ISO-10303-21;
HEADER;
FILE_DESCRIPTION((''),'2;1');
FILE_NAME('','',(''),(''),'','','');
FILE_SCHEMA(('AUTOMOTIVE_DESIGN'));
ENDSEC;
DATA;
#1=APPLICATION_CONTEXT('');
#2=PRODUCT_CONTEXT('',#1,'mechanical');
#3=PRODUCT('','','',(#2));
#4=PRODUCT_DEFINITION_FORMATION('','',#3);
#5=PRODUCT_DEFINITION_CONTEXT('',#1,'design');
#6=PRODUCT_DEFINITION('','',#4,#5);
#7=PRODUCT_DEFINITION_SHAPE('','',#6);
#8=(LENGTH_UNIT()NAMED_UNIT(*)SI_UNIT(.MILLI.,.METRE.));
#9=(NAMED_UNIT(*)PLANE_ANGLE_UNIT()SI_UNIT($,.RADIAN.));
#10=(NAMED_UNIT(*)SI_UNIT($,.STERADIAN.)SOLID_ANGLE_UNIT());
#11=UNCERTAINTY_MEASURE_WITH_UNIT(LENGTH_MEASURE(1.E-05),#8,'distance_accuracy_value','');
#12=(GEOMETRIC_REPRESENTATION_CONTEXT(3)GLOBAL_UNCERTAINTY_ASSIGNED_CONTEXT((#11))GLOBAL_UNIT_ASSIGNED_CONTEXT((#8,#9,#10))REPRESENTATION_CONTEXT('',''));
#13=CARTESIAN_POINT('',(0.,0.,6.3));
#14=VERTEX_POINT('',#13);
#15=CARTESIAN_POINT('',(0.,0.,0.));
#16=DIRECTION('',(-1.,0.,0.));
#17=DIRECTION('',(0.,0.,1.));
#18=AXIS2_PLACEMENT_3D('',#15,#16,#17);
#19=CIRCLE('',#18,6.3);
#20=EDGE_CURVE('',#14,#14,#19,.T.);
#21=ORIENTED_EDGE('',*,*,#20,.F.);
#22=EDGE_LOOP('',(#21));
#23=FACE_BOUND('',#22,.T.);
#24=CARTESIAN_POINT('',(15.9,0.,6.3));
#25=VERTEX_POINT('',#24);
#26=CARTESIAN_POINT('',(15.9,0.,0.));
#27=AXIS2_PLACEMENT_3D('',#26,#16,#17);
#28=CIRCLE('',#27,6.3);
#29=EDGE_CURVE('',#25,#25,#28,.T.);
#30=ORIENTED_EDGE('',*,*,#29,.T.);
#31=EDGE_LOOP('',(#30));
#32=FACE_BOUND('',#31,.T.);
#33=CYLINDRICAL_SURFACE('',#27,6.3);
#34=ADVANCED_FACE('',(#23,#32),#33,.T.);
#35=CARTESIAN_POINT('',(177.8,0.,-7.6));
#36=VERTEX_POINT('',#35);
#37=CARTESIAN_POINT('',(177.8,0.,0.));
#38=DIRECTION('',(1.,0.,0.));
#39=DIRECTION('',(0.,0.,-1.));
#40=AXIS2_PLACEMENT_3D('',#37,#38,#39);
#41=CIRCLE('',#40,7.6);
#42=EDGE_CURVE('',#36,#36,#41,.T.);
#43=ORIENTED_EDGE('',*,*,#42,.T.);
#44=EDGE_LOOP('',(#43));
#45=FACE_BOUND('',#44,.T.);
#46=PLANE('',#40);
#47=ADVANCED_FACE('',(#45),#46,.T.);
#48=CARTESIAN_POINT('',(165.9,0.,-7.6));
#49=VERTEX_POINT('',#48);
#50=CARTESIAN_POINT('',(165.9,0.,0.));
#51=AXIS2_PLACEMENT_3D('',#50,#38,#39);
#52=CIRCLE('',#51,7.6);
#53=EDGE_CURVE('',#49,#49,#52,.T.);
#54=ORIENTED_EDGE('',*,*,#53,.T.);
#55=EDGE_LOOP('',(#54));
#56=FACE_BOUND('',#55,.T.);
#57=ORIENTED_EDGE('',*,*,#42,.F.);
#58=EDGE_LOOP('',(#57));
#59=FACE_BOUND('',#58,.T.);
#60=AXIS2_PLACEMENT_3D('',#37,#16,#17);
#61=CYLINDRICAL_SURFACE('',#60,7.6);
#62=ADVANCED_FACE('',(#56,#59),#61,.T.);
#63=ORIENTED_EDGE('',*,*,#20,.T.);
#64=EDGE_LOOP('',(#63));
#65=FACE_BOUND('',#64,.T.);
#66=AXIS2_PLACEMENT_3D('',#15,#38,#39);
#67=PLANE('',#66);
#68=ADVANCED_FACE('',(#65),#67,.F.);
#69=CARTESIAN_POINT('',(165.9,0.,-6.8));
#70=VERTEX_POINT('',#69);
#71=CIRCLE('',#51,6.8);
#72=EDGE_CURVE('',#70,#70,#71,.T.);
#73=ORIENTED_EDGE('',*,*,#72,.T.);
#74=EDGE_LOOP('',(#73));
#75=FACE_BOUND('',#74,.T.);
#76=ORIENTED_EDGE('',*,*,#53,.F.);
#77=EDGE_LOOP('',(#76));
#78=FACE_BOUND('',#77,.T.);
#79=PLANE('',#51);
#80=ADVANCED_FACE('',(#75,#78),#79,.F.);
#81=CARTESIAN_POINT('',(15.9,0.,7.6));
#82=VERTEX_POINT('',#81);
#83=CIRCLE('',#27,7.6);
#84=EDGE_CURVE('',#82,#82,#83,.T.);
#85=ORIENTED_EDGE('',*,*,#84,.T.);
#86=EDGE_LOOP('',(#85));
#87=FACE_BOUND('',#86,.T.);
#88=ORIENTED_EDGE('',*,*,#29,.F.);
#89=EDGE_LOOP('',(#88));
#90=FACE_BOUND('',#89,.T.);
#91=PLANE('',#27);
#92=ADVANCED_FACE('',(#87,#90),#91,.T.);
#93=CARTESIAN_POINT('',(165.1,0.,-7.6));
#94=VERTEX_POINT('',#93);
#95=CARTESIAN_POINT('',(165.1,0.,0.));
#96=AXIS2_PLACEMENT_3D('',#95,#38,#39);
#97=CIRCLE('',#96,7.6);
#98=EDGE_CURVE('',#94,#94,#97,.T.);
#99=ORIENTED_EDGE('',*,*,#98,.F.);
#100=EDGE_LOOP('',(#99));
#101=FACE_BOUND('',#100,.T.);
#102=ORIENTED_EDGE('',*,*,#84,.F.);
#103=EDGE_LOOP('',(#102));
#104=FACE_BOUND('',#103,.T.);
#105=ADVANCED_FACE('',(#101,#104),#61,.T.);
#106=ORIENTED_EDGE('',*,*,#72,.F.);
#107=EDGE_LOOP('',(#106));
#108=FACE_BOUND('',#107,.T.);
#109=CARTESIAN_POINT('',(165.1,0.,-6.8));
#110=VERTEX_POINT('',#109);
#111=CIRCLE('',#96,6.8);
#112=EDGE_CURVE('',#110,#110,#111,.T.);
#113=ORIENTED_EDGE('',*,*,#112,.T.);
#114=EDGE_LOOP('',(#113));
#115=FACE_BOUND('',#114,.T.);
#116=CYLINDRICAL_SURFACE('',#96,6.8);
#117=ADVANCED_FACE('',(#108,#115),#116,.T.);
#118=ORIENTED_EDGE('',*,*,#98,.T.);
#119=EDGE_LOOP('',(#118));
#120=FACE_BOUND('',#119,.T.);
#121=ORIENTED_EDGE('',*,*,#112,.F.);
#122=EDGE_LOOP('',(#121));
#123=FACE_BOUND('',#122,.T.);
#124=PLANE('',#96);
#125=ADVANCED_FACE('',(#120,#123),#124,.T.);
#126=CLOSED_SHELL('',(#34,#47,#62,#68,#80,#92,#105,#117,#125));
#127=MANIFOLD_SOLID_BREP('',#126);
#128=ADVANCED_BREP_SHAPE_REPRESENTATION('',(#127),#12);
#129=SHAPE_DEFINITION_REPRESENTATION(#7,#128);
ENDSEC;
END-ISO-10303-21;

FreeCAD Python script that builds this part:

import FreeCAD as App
import Part
import Sketcher
from FreeCAD import Vector

doc = App.newDocument("Part")
body = doc.addObject("PartDesign::Body", "Body")

sketch1 = doc.addObject("Sketcher::SketchObject", "Sketch")
body.addObject(sketch1)
sketch1.AttachmentSupport = (doc.YZ_Plane, [""])
sketch1.MapMode = "FlatFace"
sketch1.addGeometry(Part.Circle(Vector(0, 0, 0), Vector(0, 0, 1), 8), False)
sketch1.addConstraint([
    Sketcher.Constraint("Coincident", 0, 3, -1, 1),
    Sketcher.Constraint("Diameter", 0, 15.2),
])
pad1 = doc.addObject("PartDesign::Pad", "Pad")
body.addObject(pad1)
pad1.Profile = sketch1
pad1.Length = 177.8

sketch2 = doc.addObject("Sketcher::SketchObject", "Sketch001")
body.addObject(sketch2)
sketch2.AttachmentSupport = (doc.YZ_Plane, [""])
sketch2.MapMode = "FlatFace"
sketch2.AttachmentOffset = App.Placement(Vector(0, 0, 165.1), App.Rotation())
sketch2.addGeometry([
    Part.Circle(Vector(0, 0, 0), Vector(0, 0, 1), 8),
    Part.Circle(Vector(0, 0, 0), Vector(0, 0, 1), 7),
], False)
sketch2.addConstraint([
    Sketcher.Constraint("Coincident", 0, 3, -1, 1),
    Sketcher.Constraint("Coincident", 1, 3, -1, 1),
    Sketcher.Constraint("Diameter", 0, 15.2),
    Sketcher.Constraint("Diameter", 1, 13.6),
])
pocket1 = doc.addObject("PartDesign::Pocket", "Pocket")
body.addObject(pocket1)
pocket1.Profile = sketch2
pocket1.Length = 0.8
pocket1.Reversed = True

sketch3 = doc.addObject("Sketcher::SketchObject", "Sketch002")
body.addObject(sketch3)
sketch3.AttachmentSupport = (doc.YZ_Plane, [""])
sketch3.MapMode = "FlatFace"
sketch3.addGeometry([
    Part.Circle(Vector(0, 0, 0), Vector(0, 0, 1), 8),
    Part.Circle(Vector(0, 0, 0), Vector(0, 0, 1), 6),
], False)
sketch3.addConstraint([
    Sketcher.Constraint("Coincident", 0, 3, -1, 1),
    Sketcher.Constraint("Coincident", 1, 3, -1, 1),
    Sketcher.Constraint("Diameter", 0, 15.2),
    Sketcher.Constraint("Diameter", 1, 12.6),
])
pocket2 = doc.addObject("PartDesign::Pocket", "Pocket001")
body.addObject(pocket2)
pocket2.Profile = sketch3
pocket2.Length = 15.9
pocket2.Reversed = True

doc.recompute()
